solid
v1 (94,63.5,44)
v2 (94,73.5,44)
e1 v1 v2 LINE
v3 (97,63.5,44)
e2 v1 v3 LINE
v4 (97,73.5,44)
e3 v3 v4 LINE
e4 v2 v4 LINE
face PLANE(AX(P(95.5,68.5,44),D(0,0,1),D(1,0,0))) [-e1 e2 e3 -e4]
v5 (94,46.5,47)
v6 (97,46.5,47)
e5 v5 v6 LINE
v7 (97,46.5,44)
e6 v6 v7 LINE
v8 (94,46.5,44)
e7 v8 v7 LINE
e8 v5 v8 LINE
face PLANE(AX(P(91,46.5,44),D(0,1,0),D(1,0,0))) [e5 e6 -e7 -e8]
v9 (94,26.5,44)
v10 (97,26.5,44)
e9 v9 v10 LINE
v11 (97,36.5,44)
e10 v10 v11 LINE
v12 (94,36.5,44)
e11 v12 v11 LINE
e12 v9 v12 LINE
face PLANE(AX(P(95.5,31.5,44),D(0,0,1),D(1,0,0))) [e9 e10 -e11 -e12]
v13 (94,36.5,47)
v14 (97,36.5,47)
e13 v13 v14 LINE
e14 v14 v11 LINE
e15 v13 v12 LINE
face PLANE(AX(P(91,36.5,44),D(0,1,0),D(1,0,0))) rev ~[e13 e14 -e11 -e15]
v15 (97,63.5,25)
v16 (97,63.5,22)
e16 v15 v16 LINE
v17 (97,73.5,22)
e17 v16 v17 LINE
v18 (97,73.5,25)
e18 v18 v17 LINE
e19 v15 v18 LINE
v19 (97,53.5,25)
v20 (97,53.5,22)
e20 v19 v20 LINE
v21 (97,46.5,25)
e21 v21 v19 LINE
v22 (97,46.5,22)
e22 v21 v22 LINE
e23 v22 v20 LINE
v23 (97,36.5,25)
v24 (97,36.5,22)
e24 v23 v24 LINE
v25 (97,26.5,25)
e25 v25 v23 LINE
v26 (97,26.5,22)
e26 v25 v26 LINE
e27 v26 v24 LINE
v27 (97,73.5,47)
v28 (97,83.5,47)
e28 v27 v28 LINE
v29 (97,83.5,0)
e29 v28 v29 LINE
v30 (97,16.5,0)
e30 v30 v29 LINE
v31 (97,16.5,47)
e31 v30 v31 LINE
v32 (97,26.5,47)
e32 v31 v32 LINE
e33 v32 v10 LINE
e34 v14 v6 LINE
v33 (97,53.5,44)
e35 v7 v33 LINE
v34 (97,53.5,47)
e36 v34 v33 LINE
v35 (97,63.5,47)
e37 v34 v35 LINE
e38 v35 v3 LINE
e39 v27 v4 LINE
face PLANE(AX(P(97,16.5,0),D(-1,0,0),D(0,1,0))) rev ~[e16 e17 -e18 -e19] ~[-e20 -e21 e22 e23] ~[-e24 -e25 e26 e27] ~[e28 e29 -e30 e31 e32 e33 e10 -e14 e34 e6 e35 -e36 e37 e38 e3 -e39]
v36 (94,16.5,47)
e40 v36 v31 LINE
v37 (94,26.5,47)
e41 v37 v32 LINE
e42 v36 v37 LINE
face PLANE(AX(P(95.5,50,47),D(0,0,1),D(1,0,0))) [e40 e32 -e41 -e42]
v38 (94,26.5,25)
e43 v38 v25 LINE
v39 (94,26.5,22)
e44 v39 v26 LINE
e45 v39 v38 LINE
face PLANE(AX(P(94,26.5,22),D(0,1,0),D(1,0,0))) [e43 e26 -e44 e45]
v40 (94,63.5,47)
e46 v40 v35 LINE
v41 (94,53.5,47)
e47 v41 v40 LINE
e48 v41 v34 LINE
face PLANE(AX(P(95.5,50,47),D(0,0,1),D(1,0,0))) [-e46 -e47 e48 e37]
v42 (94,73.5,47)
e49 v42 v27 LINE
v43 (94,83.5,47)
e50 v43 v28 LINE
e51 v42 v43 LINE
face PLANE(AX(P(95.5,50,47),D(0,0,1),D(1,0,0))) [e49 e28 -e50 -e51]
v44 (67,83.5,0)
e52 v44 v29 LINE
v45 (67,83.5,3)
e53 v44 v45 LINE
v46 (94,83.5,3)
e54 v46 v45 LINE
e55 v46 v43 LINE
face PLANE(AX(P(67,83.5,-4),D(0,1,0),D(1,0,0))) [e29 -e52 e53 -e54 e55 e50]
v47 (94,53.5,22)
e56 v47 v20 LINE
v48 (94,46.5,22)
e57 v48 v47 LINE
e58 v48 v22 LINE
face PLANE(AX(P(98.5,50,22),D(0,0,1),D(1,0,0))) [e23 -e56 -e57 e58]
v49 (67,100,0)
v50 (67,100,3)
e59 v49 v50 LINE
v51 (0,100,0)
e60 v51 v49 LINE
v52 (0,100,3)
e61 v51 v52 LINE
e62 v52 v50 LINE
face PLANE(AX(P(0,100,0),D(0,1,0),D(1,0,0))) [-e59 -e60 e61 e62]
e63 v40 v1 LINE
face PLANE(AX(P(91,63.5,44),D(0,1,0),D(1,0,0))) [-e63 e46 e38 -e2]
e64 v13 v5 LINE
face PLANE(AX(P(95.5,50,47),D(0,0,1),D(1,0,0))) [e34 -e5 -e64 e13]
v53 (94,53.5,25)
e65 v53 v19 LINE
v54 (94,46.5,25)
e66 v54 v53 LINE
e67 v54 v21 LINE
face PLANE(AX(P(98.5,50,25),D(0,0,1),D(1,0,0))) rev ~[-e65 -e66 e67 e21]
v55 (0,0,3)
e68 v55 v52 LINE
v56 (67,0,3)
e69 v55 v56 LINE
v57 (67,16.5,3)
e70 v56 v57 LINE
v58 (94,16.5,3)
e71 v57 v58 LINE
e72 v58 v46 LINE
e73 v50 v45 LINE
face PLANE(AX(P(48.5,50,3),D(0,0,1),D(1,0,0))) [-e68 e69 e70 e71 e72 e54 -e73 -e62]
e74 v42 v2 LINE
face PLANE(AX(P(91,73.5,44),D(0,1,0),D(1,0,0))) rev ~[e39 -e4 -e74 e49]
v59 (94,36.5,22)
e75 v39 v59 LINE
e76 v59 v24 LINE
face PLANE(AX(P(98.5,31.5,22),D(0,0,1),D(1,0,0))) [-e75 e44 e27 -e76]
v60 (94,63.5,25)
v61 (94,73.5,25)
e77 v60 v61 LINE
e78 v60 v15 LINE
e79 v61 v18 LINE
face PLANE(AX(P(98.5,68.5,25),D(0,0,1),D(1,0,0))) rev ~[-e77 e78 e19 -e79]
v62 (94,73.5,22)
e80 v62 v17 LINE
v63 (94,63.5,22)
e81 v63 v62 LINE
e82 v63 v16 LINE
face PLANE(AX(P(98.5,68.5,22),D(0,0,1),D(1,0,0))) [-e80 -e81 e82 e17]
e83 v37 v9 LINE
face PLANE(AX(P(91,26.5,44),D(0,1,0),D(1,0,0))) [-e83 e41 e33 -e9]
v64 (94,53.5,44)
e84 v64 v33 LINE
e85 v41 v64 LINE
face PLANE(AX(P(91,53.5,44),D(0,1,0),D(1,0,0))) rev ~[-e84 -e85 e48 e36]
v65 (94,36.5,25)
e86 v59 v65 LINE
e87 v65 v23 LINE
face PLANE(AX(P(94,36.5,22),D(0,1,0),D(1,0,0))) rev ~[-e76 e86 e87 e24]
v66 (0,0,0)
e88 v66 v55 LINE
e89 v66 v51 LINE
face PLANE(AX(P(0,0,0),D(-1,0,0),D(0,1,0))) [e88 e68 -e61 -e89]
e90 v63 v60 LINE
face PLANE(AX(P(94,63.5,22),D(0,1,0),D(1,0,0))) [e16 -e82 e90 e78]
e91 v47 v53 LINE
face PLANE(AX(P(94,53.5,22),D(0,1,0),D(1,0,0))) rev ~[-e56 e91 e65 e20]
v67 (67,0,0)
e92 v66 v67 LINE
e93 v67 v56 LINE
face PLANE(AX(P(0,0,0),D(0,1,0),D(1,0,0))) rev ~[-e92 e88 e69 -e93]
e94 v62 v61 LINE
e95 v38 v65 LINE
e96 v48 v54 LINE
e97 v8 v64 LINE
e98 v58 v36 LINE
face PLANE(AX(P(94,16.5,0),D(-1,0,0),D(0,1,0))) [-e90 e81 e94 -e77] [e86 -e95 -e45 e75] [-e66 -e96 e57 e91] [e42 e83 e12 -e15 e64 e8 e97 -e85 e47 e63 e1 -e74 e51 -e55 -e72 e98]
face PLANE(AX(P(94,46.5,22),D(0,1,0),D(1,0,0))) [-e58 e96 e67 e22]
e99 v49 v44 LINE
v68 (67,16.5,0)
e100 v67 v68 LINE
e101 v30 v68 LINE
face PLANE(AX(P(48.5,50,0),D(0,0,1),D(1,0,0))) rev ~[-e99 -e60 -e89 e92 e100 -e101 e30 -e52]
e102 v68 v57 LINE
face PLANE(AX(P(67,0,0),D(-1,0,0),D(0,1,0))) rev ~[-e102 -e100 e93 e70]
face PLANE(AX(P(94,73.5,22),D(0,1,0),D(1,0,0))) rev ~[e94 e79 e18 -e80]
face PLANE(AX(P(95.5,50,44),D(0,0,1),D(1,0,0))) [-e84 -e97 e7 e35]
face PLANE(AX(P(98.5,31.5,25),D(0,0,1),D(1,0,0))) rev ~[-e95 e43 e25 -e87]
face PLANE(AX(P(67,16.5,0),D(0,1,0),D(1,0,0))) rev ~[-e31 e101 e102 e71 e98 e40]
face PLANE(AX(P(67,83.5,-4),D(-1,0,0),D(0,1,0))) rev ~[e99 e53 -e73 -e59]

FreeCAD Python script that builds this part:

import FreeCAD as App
import Part
import Sketcher

V = App.Vector

doc = App.newDocument("Part")
params = doc.addObject("Spreadsheet::Sheet", "Params")
for row, (alias, value) in enumerate([
    ("sketch1_width", "30 mm"),
    ("sketch1_height", "16.5 mm"),
    ("pad1_length", "11 mm"),
    ("sketch2_width", "30 mm"),
    ("sketch2_height", "16.5 mm"),
    ("pad2_length", "3 mm"),
    ("sketch3_width", "97 mm"),
    ("sketch3_height", "100 mm"),
    ("pad3_length", "3 mm"),
    ("sketch4_width", "9 mm"),
    ("sketch4_height", "10 mm"),
    ("pad4_length", "3 mm"),
    ("sketch5_width", "9 mm"),
    ("sketch5_height", "7 mm"),
    ("pad5_length", "3 mm"),
    ("sketch6_width", "9 mm"),
    ("sketch6_height", "10 mm"),
    ("pad6_length", "3 mm"),
    ("sketch7_width", "9 mm"),
    ("sketch7_height", "10 mm"),
    ("pad7_length", "3 mm"),
    ("sketch8_width", "9 mm"),
    ("sketch8_height", "7 mm"),
    ("pad8_length", "3 mm"),
    ("sketch9_width", "9 mm"),
    ("sketch9_height", "10 mm"),
    ("pad9_length", "3 mm"),
    ("sketch10_width", "3 mm"),
    ("sketch10_height", "67 mm"),
    ("pad10_length", "47 mm"),
], start=1):
    params.set(f"A{row}", alias)
    params.set(f"B{row}", "=" + value)
    params.setAlias(f"B{row}", alias)

body = doc.addObject("PartDesign::Body", "Body")

sketch1 = body.newObject("Sketcher::SketchObject", "Sketch")
sketch1.AttachmentSupport = (doc.getObject("XY_Plane"), [""])
sketch1.MapMode = "FlatFace"
sketch1.AttachmentOffset = App.Placement(V(0, 0, -4), App.Rotation())
sketch1.addGeometry([
    Part.LineSegment(V(67, 100, 0), V(67, 84, 0)),
    Part.LineSegment(V(67, 84, 0), V(97, 84, 0)),
    Part.LineSegment(V(97, 84, 0), V(97, 100, 0)),
    Part.LineSegment(V(97, 100, 0), V(67, 100, 0)),
], False)
sketch1.addConstraint([
    Sketcher.Constraint("Coincident", 0, 2, 1, 1),
    Sketcher.Constraint("Coincident", 1, 2, 2, 1),
    Sketcher.Constraint("Coincident", 2, 2, 3, 1),
    Sketcher.Constraint("Coincident", 3, 2, 0, 1),
    Sketcher.Constraint("Vertical", 0),
    Sketcher.Constraint("Horizontal", 1),
    Sketcher.Constraint("Vertical", 2),
    Sketcher.Constraint("Horizontal", 3),
    Sketcher.Constraint("DistanceX", 1, 1, 1, 2, 30.0),
    Sketcher.Constraint("DistanceY", 0, 2, 0, 1, 16.5),
    Sketcher.Constraint("DistanceX", -1, 1, 0, 2, 67.0),
    Sketcher.Constraint("DistanceY", -1, 1, 2, 2, 100.0),
])
sketch1.setExpression("Constraints[8]", "Params.sketch1_width")
sketch1.setExpression("Constraints[9]", "Params.sketch1_height")
pad1 = body.newObject("PartDesign::Pad", "Pad")
pad1.Profile = sketch1
pad1.setExpression("Length", "Params.pad1_length")
body2 = doc.addObject("PartDesign::Body", "Body001")

sketch2 = body2.newObject("Sketcher::SketchObject", "Sketch001")
sketch2.AttachmentSupport = (doc.getObject("XY_Plane001"), [""])
sketch2.MapMode = "FlatFace"
sketch2.addGeometry([
    Part.LineSegment(V(67, 16, 0), V(67, 0, 0)),
    Part.LineSegment(V(67, 0, 0), V(97, 0, 0)),
    Part.LineSegment(V(97, 0, 0), V(97, 16, 0)),
    Part.LineSegment(V(97, 16, 0), V(67, 16, 0)),
], False)
sketch2.addConstraint([
    Sketcher.Constraint("Coincident", 0, 2, 1, 1),
    Sketcher.Constraint("Coincident", 1, 2, 2, 1),
    Sketcher.Constraint("Coincident", 2, 2, 3, 1),
    Sketcher.Constraint("Coincident", 3, 2, 0, 1),
    Sketcher.Constraint("Vertical", 0),
    Sketcher.Constraint("Horizontal", 1),
    Sketcher.Constraint("Vertical", 2),
    Sketcher.Constraint("Horizontal", 3),
    Sketcher.Constraint("PointOnObject", 0, 2, -1),
    Sketcher.Constraint("DistanceX", 1, 1, 1, 2, 30.0),
    Sketcher.Constraint("DistanceY", 0, 2, 0, 1, 16.5),
    Sketcher.Constraint("DistanceX", -1, 1, 0, 2, 67.0),
])
sketch2.setExpression("Constraints[9]", "Params.sketch2_width")
sketch2.setExpression("Constraints[10]", "Params.sketch2_height")
pad2 = body2.newObject("PartDesign::Pad", "Pad001")
pad2.Profile = sketch2
pad2.setExpression("Length", "Params.pad2_length")
body3 = doc.addObject("PartDesign::Body", "Body002")

sketch3 = body3.newObject("Sketcher::SketchObject", "Sketch002")
sketch3.AttachmentSupport = (doc.getObject("XY_Plane002"), [""])
sketch3.MapMode = "FlatFace"
sketch3.addGeometry([
    Part.LineSegment(V(0, 100, 0), V(0, 0, 0)),
    Part.LineSegment(V(0, 0, 0), V(97, 0, 0)),
    Part.LineSegment(V(97, 0, 0), V(97, 100, 0)),
    Part.LineSegment(V(97, 100, 0), V(0, 100, 0)),
], False)
sketch3.addConstraint([
    Sketcher.Constraint("Coincident", 0, 2, 1, 1),
    Sketcher.Constraint("Coincident", 1, 2, 2, 1),
    Sketcher.Constraint("Coincident", 2, 2, 3, 1),
    Sketcher.Constraint("Coincident", 3, 2, 0, 1),
    Sketcher.Constraint("Vertical", 0),
    Sketcher.Constraint("Horizontal", 1),
    Sketcher.Constraint("Vertical", 2),
    Sketcher.Constraint("Horizontal", 3),
    Sketcher.Constraint("Coincident", 0, 2, -1, 1),
    Sketcher.Constraint("DistanceX", 1, 1, 1, 2, 97.0),
    Sketcher.Constraint("DistanceY", 0, 2, 0, 1, 100.0),
])
sketch3.setExpression("Constraints[9]", "Params.sketch3_width")
sketch3.setExpression("Constraints[10]", "Params.sketch3_height")
pad3 = body3.newObject("PartDesign::Pad", "Pad002")
pad3.Profile = sketch3
pad3.setExpression("Length", "Params.pad3_length")
doc.recompute()

boolean = body3.newObject("PartDesign::Boolean", "Boolean")
boolean.Type = "Cut"
boolean.addObjects([body2])
doc.recompute()

boolean2 = body3.newObject("PartDesign::Boolean", "Boolean001")
boolean2.Type = "Cut"
boolean2.addObjects([body])
body4 = doc.addObject("PartDesign::Body", "Body003")

sketch4 = body4.newObject("Sketcher::SketchObject", "Sketch003")
sketch4.AttachmentSupport = (doc.getObject("XY_Plane003"), [""])
sketch4.MapMode = "FlatFace"
sketch4.AttachmentOffset = App.Placement(V(0, 0, 22), App.Rotation())
sketch4.addGeometry([
    Part.LineSegment(V(94, 74, 0), V(94, 64, 0)),
    Part.LineSegment(V(94, 64, 0), V(103, 64, 0)),
    Part.LineSegment(V(103, 64, 0), V(103, 74, 0)),
    Part.LineSegment(V(103, 74, 0), V(94, 74, 0)),
], False)
sketch4.addConstraint([
    Sketcher.Constraint("Coincident", 0, 2, 1, 1),
    Sketcher.Constraint("Coincident", 1, 2, 2, 1),
    Sketcher.Constraint("Coincident", 2, 2, 3, 1),
    Sketcher.Constraint("Coincident", 3, 2, 0, 1),
    Sketcher.Constraint("Vertical", 0),
    Sketcher.Constraint("Horizontal", 1),
    Sketcher.Constraint("Vertical", 2),
    Sketcher.Constraint("Horizontal", 3),
    Sketcher.Constraint("DistanceX", 1, 1, 1, 2, 9.0),
    Sketcher.Constraint("DistanceY", 0, 2, 0, 1, 10.0),
    Sketcher.Constraint("DistanceX", -1, 1, 0, 2, 94.0),
    Sketcher.Constraint("DistanceY", -1, 1, 0, 2, 63.5),
])
sketch4.setExpression("Constraints[8]", "Params.sketch4_width")
sketch4.setExpression("Constraints[9]", "Params.sketch4_height")
pad4 = body4.newObject("PartDesign::Pad", "Pad003")
pad4.Profile = sketch4
pad4.setExpression("Length", "Params.pad4_length")
body5 = doc.addObject("PartDesign::Body", "Body004")

sketch5 = body5.newObject("Sketcher::SketchObject", "Sketch004")
sketch5.AttachmentSupport = (doc.getObject("XY_Plane004"), [""])
sketch5.MapMode = "FlatFace"
sketch5.AttachmentOffset = App.Placement(V(0, 0, 22), App.Rotation())
sketch5.addGeometry([
    Part.LineSegment(V(94, 54, 0), V(94, 46, 0)),
    Part.LineSegment(V(94, 46, 0), V(103, 46, 0)),
    Part.LineSegment(V(103, 46, 0), V(103, 54, 0)),
    Part.LineSegment(V(103, 54, 0), V(94, 54, 0)),
], False)
sketch5.addConstraint([
    Sketcher.Constraint("Coincident", 0, 2, 1, 1),
    Sketcher.Constraint("Coincident", 1, 2, 2, 1),
    Sketcher.Constraint("Coincident", 2, 2, 3, 1),
    Sketcher.Constraint("Coincident", 3, 2, 0, 1),
    Sketcher.Constraint("Vertical", 0),
    Sketcher.Constraint("Horizontal", 1),
    Sketcher.Constraint("Vertical", 2),
    Sketcher.Constraint("Horizontal", 3),
    Sketcher.Constraint("DistanceX", 1, 1, 1, 2, 9.0),
    Sketcher.Constraint("DistanceY", 0, 2, 0, 1, 7.0),
    Sketcher.Constraint("DistanceX", -1, 1, 0, 2, 94.0),
    Sketcher.Constraint("DistanceY", -1, 1, 0, 2, 46.5),
])
sketch5.setExpression("Constraints[8]", "Params.sketch5_width")
sketch5.setExpression("Constraints[9]", "Params.sketch5_height")
pad5 = body5.newObject("PartDesign::Pad", "Pad004")
pad5.Profile = sketch5
pad5.setExpression("Length", "Params.pad5_length")
body6 = doc.addObject("PartDesign::Body", "Body005")

sketch6 = body6.newObject("Sketcher::SketchObject", "Sketch005")
sketch6.AttachmentSupport = (doc.getObject("XY_Plane005"), [""])
sketch6.MapMode = "FlatFace"
sketch6.AttachmentOffset = App.Placement(V(0, 0, 22), App.Rotation())
sketch6.addGeometry([
    Part.LineSegment(V(94, 36, 0), V(94, 26, 0)),
    Part.LineSegment(V(94, 26, 0), V(103, 26, 0)),
    Part.LineSegment(V(103, 26, 0), V(103, 36, 0)),
    Part.LineSegment(V(103, 36, 0), V(94, 36, 0)),
], False)
sketch6.addConstraint([
    Sketcher.Constraint("Coincident", 0, 2, 1, 1),
    Sketcher.Constraint("Coincident", 1, 2, 2, 1),
    Sketcher.Constraint("Coincident", 2, 2, 3, 1),
    Sketcher.Constraint("Coincident", 3, 2, 0, 1),
    Sketcher.Constraint("Vertical", 0),
    Sketcher.Constraint("Horizontal", 1),
    Sketcher.Constraint("Vertical", 2),
    Sketcher.Constraint("Horizontal", 3),
    Sketcher.Constraint("DistanceX", 1, 1, 1, 2, 9.0),
    Sketcher.Constraint("DistanceY", 0, 2, 0, 1, 10.0),
    Sketcher.Constraint("DistanceX", -1, 1, 0, 2, 94.0),
    Sketcher.Constraint("DistanceY", -1, 1, 0, 2, 26.5),
])
sketch6.setExpression("Constraints[8]", "Params.sketch6_width")
sketch6.setExpression("Constraints[9]", "Params.sketch6_height")
pad6 = body6.newObject("PartDesign::Pad", "Pad005")
pad6.Profile = sketch6
pad6.setExpression("Length", "Params.pad6_length")
body7 = doc.addObject("PartDesign::Body", "Body006")

sketch7 = body7.newObject("Sketcher::SketchObject", "Sketch006")
sketch7.AttachmentSupport = (doc.getObject("XY_Plane006"), [""])
sketch7.MapMode = "FlatFace"
sketch7.AttachmentOffset = App.Placement(V(0, 0, 44), App.Rotation())
sketch7.addGeometry([
    Part.LineSegment(V(91, 74, 0), V(91, 64, 0)),
    Part.LineSegment(V(91, 64, 0), V(100, 64, 0)),
    Part.LineSegment(V(100, 64, 0), V(100, 74, 0)),
    Part.LineSegment(V(100, 74, 0), V(91, 74, 0)),
], False)
sketch7.addConstraint([
    Sketcher.Constraint("Coincident", 0, 2, 1, 1),
    Sketcher.Constraint("Coincident", 1, 2, 2, 1),
    Sketcher.Constraint("Coincident", 2, 2, 3, 1),
    Sketcher.Constraint("Coincident", 3, 2, 0, 1),
    Sketcher.Constraint("Vertical", 0),
    Sketcher.Constraint("Horizontal", 1),
    Sketcher.Constraint("Vertical", 2),
    Sketcher.Constraint("Horizontal", 3),
    Sketcher.Constraint("DistanceX", 1, 1, 1, 2, 9.0),
    Sketcher.Constraint("DistanceY", 0, 2, 0, 1, 10.0),
    Sketcher.Constraint("DistanceX", -1, 1, 0, 2, 91.0),
    Sketcher.Constraint("DistanceY", -1, 1, 0, 2, 63.5),
])
sketch7.setExpression("Constraints[8]", "Params.sketch7_width")
sketch7.setExpression("Constraints[9]", "Params.sketch7_height")
pad7 = body7.newObject("PartDesign::Pad", "Pad006")
pad7.Profile = sketch7
pad7.setExpression("Length", "Params.pad7_length")
body8 = doc.addObject("PartDesign::Body", "Body007")

sketch8 = body8.newObject("Sketcher::SketchObject", "Sketch007")
sketch8.AttachmentSupport = (doc.getObject("XY_Plane007"), [""])
sketch8.MapMode = "FlatFace"
sketch8.AttachmentOffset = App.Placement(V(0, 0, 44), App.Rotation())
sketch8.addGeometry([
    Part.LineSegment(V(91, 54, 0), V(91, 46, 0)),
    Part.LineSegment(V(91, 46, 0), V(100, 46, 0)),
    Part.LineSegment(V(100, 46, 0), V(100, 54, 0)),
    Part.LineSegment(V(100, 54, 0), V(91, 54, 0)),
], False)
sketch8.addConstraint([
    Sketcher.Constraint("Coincident", 0, 2, 1, 1),
    Sketcher.Constraint("Coincident", 1, 2, 2, 1),
    Sketcher.Constraint("Coincident", 2, 2, 3, 1),
    Sketcher.Constraint("Coincident", 3, 2, 0, 1),
    Sketcher.Constraint("Vertical", 0),
    Sketcher.Constraint("Horizontal", 1),
    Sketcher.Constraint("Vertical", 2),
    Sketcher.Constraint("Horizontal", 3),
    Sketcher.Constraint("DistanceX", 1, 1, 1, 2, 9.0),
    Sketcher.Constraint("DistanceY", 0, 2, 0, 1, 7.0),
    Sketcher.Constraint("DistanceX", -1, 1, 0, 2, 91.0),
    Sketcher.Constraint("DistanceY", -1, 1, 0, 2, 46.5),
])
sketch8.setExpression("Constraints[8]", "Params.sketch8_width")
sketch8.setExpression("Constraints[9]", "Params.sketch8_height")
pad8 = body8.newObject("PartDesign::Pad", "Pad007")
pad8.Profile = sketch8
pad8.setExpression("Length", "Params.pad8_length")
body9 = doc.addObject("PartDesign::Body", "Body008")

sketch9 = body9.newObject("Sketcher::SketchObject", "Sketch008")
sketch9.AttachmentSupport = (doc.getObject("XY_Plane008"), [""])
sketch9.MapMode = "FlatFace"
sketch9.AttachmentOffset = App.Placement(V(0, 0, 44), App.Rotation())
sketch9.addGeometry([
    Part.LineSegment(V(91, 36, 0), V(91, 26, 0)),
    Part.LineSegment(V(91, 26, 0), V(100, 26, 0)),
    Part.LineSegment(V(100, 26, 0), V(100, 36, 0)),
    Part.LineSegment(V(100, 36, 0), V(91, 36, 0)),
], False)
sketch9.addConstraint([
    Sketcher.Constraint("Coincident", 0, 2, 1, 1),
    Sketcher.Constraint("Coincident", 1, 2, 2, 1),
    Sketcher.Constraint("Coincident", 2, 2, 3, 1),
    Sketcher.Constraint("Coincident", 3, 2, 0, 1),
    Sketcher.Constraint("Vertical", 0),
    Sketcher.Constraint("Horizontal", 1),
    Sketcher.Constraint("Vertical", 2),
    Sketcher.Constraint("Horizontal", 3),
    Sketcher.Constraint("DistanceX", 1, 1, 1, 2, 9.0),
    Sketcher.Constraint("DistanceY", 0, 2, 0, 1, 10.0),
    Sketcher.Constraint("DistanceX", -1, 1, 0, 2, 91.0),
    Sketcher.Constraint("DistanceY", -1, 1, 0, 2, 26.5),
])
sketch9.setExpression("Constraints[8]", "Params.sketch9_width")
sketch9.setExpression("Constraints[9]", "Params.sketch9_height")
pad9 = body9.newObject("PartDesign::Pad", "Pad008")
pad9.Profile = sketch9
pad9.setExpression("Length", "Params.pad9_length")
body10 = doc.addObject("PartDesign::Body", "Body009")

sketch10 = body10.newObject("Sketcher::SketchObject", "Sketch009")
sketch10.AttachmentSupport = (doc.getObject("XY_Plane009"), [""])
sketch10.MapMode = "FlatFace"
sketch10.addGeometry([
    Part.LineSegment(V(94, 83.5, 0), V(94, 16.5, 0)),
    Part.LineSegment(V(94, 16.5, 0), V(97, 16.5, 0)),
    Part.LineSegment(V(97, 16.5, 0), V(97, 83.5, 0)),
    Part.LineSegment(V(97, 83.5, 0), V(94, 83.5, 0)),
], False)
sketch10.addConstraint([
    Sketcher.Constraint("Coincident", 0, 2, 1, 1),
    Sketcher.Constraint("Coincident", 1, 2, 2, 1),
    Sketcher.Constraint("Coincident", 2, 2, 3, 1),
    Sketcher.Constraint("Coincident", 3, 2, 0, 1),
    Sketcher.Constraint("Vertical", 0),
    Sketcher.Constraint("Horizontal", 1),
    Sketcher.Constraint("Vertical", 2),
    Sketcher.Constraint("Horizontal", 3),
    Sketcher.Constraint("DistanceX", 1, 1, 1, 2, 3.0),
    Sketcher.Constraint("DistanceY", 0, 2, 0, 1, 67.0),
    Sketcher.Constraint("DistanceX", -1, 1, 0, 2, 94.0),
    Sketcher.Constraint("DistanceY", -1, 1, 0, 2, 16.5),
])
sketch10.setExpression("Constraints[8]", "Params.sketch10_width")
sketch10.setExpression("Constraints[9]", "Params.sketch10_height")
pad10 = body10.newObject("PartDesign::Pad", "Pad009")
pad10.Profile = sketch10
pad10.setExpression("Length", "Params.pad10_length")
doc.recompute()

boolean3 = body10.newObject("PartDesign::Boolean", "Boolean002")
boolean3.Type = "Cut"
boolean3.addObjects([body9])
doc.recompute()

boolean4 = body10.newObject("PartDesign::Boolean", "Boolean003")
boolean4.Type = "Cut"
boolean4.addObjects([body8])
doc.recompute()

boolean5 = body10.newObject("PartDesign::Boolean", "Boolean004")
boolean5.Type = "Cut"
boolean5.addObjects([body7])
doc.recompute()

boolean6 = body10.newObject("PartDesign::Boolean", "Boolean005")
boolean6.Type = "Cut"
boolean6.addObjects([body6])
doc.recompute()

boolean7 = body10.newObject("PartDesign::Boolean", "Boolean006")
boolean7.Type = "Cut"
boolean7.addObjects([body5])
doc.recompute()

boolean8 = body10.newObject("PartDesign::Boolean", "Boolean007")
boolean8.Type = "Cut"
boolean8.addObjects([body4])
doc.recompute()

boolean9 = body10.newObject("PartDesign::Boolean", "Boolean008")
boolean9.Type = "Fuse"
boolean9.addObjects([body3])

doc.recompute()
